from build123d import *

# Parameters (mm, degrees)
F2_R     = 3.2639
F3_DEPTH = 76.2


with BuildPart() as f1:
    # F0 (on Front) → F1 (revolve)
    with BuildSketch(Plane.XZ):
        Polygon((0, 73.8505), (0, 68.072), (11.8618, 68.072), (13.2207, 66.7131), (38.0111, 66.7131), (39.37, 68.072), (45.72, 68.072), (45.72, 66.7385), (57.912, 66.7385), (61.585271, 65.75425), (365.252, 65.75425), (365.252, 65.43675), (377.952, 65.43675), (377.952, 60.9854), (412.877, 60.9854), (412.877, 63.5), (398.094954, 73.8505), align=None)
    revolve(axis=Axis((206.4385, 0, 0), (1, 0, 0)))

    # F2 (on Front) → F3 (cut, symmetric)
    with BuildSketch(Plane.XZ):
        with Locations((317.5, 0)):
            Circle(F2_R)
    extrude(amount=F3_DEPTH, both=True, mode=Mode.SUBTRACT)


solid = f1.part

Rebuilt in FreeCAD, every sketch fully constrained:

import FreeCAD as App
import Part
import Sketcher

V = App.Vector
Q = App.Units.Quantity


def add_polygon(sketch, points):
    """Adds a closed chain of lines whose ends are joined by coincident constraints."""
    first, n = sketch.GeometryCount, len(points)
    for a, b in zip(points, points[1:] + points[:1]):
        sketch.addGeometry(Part.LineSegment(App.Vector(*a, 0), App.Vector(*b, 0)), False)
    for i in range(n):
        sketch.addConstraint(Sketcher.Constraint("Coincident", first + i, 2, first + (i + 1) % n, 1))

doc = App.newDocument("Part")
body = doc.addObject("PartDesign::Body", "Body")

sketch1 = doc.addObject("Sketcher::SketchObject", "Sketch")
body.addObject(sketch1)
sketch1.AttachmentSupport = (doc.XZ_Plane, [""])
sketch1.MapMode = "FlatFace"
add_polygon(sketch1, [(0, 73.85), (0, 68.07), (11.86, 68.07), (13.22, 66.71), (38.01, 66.71), (39.37, 68.07), (45.72, 68.07), (45.72, 66.74), (57.91, 66.74), (61.59, 65.75), (365.25, 65.75), (365.25, 65.44), (377.95, 65.44), (377.95, 60.99), (412.88, 60.99), (412.88, 63.5), (398.09, 73.85)])
sketch1.addConstraint(Sketcher.Constraint("Vertical", 0))
sketch1.addConstraint(Sketcher.Constraint("Horizontal", 1))
sketch1.addConstraint(Sketcher.Constraint("Horizontal", 3))
sketch1.addConstraint(Sketcher.Constraint("Horizontal", 5))
sketch1.addConstraint(Sketcher.Constraint("Vertical", 6))
sketch1.addConstraint(Sketcher.Constraint("Horizontal", 7))
sketch1.addConstraint(Sketcher.Constraint("Horizontal", 9))
sketch1.addConstraint(Sketcher.Constraint("Vertical", 10))
sketch1.addConstraint(Sketcher.Constraint("Horizontal", 11))
sketch1.addConstraint(Sketcher.Constraint("Vertical", 12))
sketch1.addConstraint(Sketcher.Constraint("Horizontal", 13))
sketch1.addConstraint(Sketcher.Constraint("Vertical", 14))
sketch1.addConstraint(Sketcher.Constraint("Horizontal", 16))
sketch1.addConstraint(Sketcher.Constraint("PointOnObject", 0, 2, -2))
sketch1.addConstraint(Sketcher.Constraint("Perpendicular", 2, 4))
sketch1.addConstraint(Sketcher.Constraint("Horizontal", 1, 2, 4, 2))
sketch1.addConstraint(Sketcher.Constraint("Equal", 2, 4))
sketch1.addConstraint(Sketcher.Constraint("DistanceX", 11, 1, 11, 2, Q("0.5 in")))
sketch1.addConstraint(Sketcher.Constraint("Angle", 8, Q("-15 deg")))
sketch1.addConstraint(Sketcher.Constraint("Angle", 15, Q("145 deg")))
sketch1.addConstraint(Sketcher.Constraint("DistanceX", 5, 1, 5, 2, Q("0.25 in")))
sketch1.addConstraint(Sketcher.Constraint("DistanceX", 7, 1, 7, 2, Q("0.48 in")))
sketch1.addConstraint(Sketcher.Constraint("DistanceX", -1, 1, 5, 2, Q("1.8 in")))
sketch1.addConstraint(Sketcher.Constraint("DistanceY", -1, 1, 14, 2, Q("2.5 in")))
sketch1.addConstraint(Sketcher.Constraint("DistanceX", 7, 2, 9, 2, Q("12.1 in")))
sketch1.addConstraint(Sketcher.Constraint("DistanceX", 1, 1, 1, 2, Q("0.467 in")))
sketch1.addConstraint(Sketcher.Constraint("DistanceX", 3, 1, 3, 2, Q("0.976 in")))
sketch1.addConstraint(Sketcher.Constraint("DistanceX", 13, 1, 13, 2, Q("1.375 in")))
sketch1.addConstraint(Sketcher.Constraint("DistanceY", 14, 1, 14, 2, Q("0.099 in")))
sketch1.addConstraint(Sketcher.Constraint("DistanceY", -1, 1, 0, 2, Q("2.68 in")))
sketch1.addConstraint(Sketcher.Constraint("DistanceY", 0, 2, 0, 1, Q("0.2275 in")))
sketch1.addConstraint(Sketcher.Constraint("DistanceY", 6, 2, 6, 1, Q("0.0525 in")))
sketch1.addConstraint(Sketcher.Constraint("DistanceY", 10, 2, 10, 1, Q("0.0125 in")))
sketch1.addConstraint(Sketcher.Constraint("DistanceX", 9, 1, 9, 2, 303.666729))
revolution = doc.addObject("PartDesign::Revolution", "Revolution")
body.addObject(revolution)
revolution.Profile = sketch1
revolution.ReferenceAxis = (sketch1, ["H_Axis"])
revolution.Angle = 360

sketch2 = doc.addObject("Sketcher::SketchObject", "Sketch001")
body.addObject(sketch2)
sketch2.AttachmentSupport = (doc.XZ_Plane, [""])
sketch2.MapMode = "FlatFace"
sketch2.addGeometry(Part.Circle(V(317.5, 0, 0), V(0, 0, 1), 3.3), False)
sketch2.addConstraint(Sketcher.Constraint("PointOnObject", 0, 3, -1))
sketch2.addConstraint(Sketcher.Constraint("Diameter", 0, Q("0.257 in")))
sketch2.addConstraint(Sketcher.Constraint("DistanceX", -1, 1, 0, 3, Q("12.5 in")))
pocket1 = doc.addObject("PartDesign::Pocket", "Pocket")
body.addObject(pocket1)
pocket1.Profile = sketch2
pocket1.Length = Q("6 in")
pocket1.Midplane = True

doc.recompute()
